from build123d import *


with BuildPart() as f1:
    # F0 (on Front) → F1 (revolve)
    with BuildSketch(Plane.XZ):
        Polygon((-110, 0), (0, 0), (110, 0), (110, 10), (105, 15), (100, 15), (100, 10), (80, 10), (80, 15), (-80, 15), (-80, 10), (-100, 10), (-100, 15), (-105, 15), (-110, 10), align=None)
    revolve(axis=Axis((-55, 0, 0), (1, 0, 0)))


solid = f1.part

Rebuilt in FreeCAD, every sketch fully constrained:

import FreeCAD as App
import Part
import Sketcher
Q = App.Units.Quantity


def add_polygon(sketch, points):
    """Adds a closed chain of lines whose ends are joined by coincident constraints."""
    first, n = sketch.GeometryCount, len(points)
    for a, b in zip(points, points[1:] + points[:1]):
        sketch.addGeometry(Part.LineSegment(App.Vector(*a, 0), App.Vector(*b, 0)), False)
    for i in range(n):
        sketch.addConstraint(Sketcher.Constraint("Coincident", first + i, 2, first + (i + 1) % n, 1))

doc = App.newDocument("Part")
params = doc.addObject("Spreadsheet::Sheet", "Params")
for row, (alias, value) in enumerate([
    ("sketch1_width", "220 mm"),
    ("sketch1_width2", "5 mm"),
    ("sketch1_width3", "20 mm"),
    ("sketch1_height", "10 mm"),
    ("revolution_angle", "360 deg"),
], start=1):
    params.set(f"A{row}", alias)
    params.set(f"B{row}", "=" + value)
    params.setAlias(f"B{row}", alias)

body = doc.addObject("PartDesign::Body", "Body")

# Sketch on XZ plane
sketch1 = doc.addObject("Sketcher::SketchObject", "Sketch")
body.addObject(sketch1)
sketch1.AttachmentSupport = (doc.XZ_Plane, [""])
sketch1.MapMode = "FlatFace"
add_polygon(sketch1, [(-110, 0), (110, 0), (110, 10), (105, 15), (100, 15), (100, 10), (80, 10), (80, 15), (-80, 15), (-80, 10), (-100, 10), (-100, 15), (-105, 15), (-110, 10)])  # lines 0-13
sketch1.addConstraint([
    Sketcher.Constraint("Horizontal", 0),
    Sketcher.Constraint("Vertical", 1),
    Sketcher.Constraint("Horizontal", 3),
    Sketcher.Constraint("Vertical", 4),
    Sketcher.Constraint("Horizontal", 5),
    Sketcher.Constraint("Vertical", 6),
    Sketcher.Constraint("Horizontal", 7),
    Sketcher.Constraint("Vertical", 8),
    Sketcher.Constraint("Horizontal", 9),
    Sketcher.Constraint("Vertical", 10),
    Sketcher.Constraint("Horizontal", 11),
    Sketcher.Constraint("Vertical", 13),
    Sketcher.Constraint("Symmetric", 0, 2, 13, 2, -1, 1),
    Sketcher.Constraint("Symmetric", 5, 2, 8, 2, -2),
    Sketcher.Constraint("Symmetric", 3, 2, 10, 2, -2),
    Sketcher.Constraint("Perpendicular", 2, 12),
    Sketcher.Constraint("Horizontal", 1, 2, 4, 2),
    Sketcher.Constraint("Horizontal", 3, 2, 6, 2),
    Sketcher.Constraint("Horizontal", 9, 2, 12, 2),
    Sketcher.Constraint("Equal", 3, 11),
    Sketcher.Constraint("Equal", 11, 4),
    Sketcher.Constraint("DistanceX", 0, 1, 0, 2, Q("220 mm")),
    Sketcher.Constraint("DistanceX", 3, 2, 3, 1, Q("5 mm")),
    Sketcher.Constraint("DistanceX", 5, 2, 5, 1, Q("20 mm")),
    Sketcher.Constraint("DistanceY", 1, 1, 1, 2, Q("10 mm")),
])
sketch1.setExpression("Constraints[35]", "Params.sketch1_width")
sketch1.setExpression("Constraints[36]", "Params.sketch1_width2")
sketch1.setExpression("Constraints[37]", "Params.sketch1_width3")
sketch1.setExpression("Constraints[38]", "Params.sketch1_height")
revolution = doc.addObject("PartDesign::Revolution", "Revolution")
body.addObject(revolution)
revolution.Profile = sketch1
revolution.ReferenceAxis = (sketch1, ["H_Axis"])
revolution.setExpression("Angle", "Params.revolution_angle")

doc.recompute()
